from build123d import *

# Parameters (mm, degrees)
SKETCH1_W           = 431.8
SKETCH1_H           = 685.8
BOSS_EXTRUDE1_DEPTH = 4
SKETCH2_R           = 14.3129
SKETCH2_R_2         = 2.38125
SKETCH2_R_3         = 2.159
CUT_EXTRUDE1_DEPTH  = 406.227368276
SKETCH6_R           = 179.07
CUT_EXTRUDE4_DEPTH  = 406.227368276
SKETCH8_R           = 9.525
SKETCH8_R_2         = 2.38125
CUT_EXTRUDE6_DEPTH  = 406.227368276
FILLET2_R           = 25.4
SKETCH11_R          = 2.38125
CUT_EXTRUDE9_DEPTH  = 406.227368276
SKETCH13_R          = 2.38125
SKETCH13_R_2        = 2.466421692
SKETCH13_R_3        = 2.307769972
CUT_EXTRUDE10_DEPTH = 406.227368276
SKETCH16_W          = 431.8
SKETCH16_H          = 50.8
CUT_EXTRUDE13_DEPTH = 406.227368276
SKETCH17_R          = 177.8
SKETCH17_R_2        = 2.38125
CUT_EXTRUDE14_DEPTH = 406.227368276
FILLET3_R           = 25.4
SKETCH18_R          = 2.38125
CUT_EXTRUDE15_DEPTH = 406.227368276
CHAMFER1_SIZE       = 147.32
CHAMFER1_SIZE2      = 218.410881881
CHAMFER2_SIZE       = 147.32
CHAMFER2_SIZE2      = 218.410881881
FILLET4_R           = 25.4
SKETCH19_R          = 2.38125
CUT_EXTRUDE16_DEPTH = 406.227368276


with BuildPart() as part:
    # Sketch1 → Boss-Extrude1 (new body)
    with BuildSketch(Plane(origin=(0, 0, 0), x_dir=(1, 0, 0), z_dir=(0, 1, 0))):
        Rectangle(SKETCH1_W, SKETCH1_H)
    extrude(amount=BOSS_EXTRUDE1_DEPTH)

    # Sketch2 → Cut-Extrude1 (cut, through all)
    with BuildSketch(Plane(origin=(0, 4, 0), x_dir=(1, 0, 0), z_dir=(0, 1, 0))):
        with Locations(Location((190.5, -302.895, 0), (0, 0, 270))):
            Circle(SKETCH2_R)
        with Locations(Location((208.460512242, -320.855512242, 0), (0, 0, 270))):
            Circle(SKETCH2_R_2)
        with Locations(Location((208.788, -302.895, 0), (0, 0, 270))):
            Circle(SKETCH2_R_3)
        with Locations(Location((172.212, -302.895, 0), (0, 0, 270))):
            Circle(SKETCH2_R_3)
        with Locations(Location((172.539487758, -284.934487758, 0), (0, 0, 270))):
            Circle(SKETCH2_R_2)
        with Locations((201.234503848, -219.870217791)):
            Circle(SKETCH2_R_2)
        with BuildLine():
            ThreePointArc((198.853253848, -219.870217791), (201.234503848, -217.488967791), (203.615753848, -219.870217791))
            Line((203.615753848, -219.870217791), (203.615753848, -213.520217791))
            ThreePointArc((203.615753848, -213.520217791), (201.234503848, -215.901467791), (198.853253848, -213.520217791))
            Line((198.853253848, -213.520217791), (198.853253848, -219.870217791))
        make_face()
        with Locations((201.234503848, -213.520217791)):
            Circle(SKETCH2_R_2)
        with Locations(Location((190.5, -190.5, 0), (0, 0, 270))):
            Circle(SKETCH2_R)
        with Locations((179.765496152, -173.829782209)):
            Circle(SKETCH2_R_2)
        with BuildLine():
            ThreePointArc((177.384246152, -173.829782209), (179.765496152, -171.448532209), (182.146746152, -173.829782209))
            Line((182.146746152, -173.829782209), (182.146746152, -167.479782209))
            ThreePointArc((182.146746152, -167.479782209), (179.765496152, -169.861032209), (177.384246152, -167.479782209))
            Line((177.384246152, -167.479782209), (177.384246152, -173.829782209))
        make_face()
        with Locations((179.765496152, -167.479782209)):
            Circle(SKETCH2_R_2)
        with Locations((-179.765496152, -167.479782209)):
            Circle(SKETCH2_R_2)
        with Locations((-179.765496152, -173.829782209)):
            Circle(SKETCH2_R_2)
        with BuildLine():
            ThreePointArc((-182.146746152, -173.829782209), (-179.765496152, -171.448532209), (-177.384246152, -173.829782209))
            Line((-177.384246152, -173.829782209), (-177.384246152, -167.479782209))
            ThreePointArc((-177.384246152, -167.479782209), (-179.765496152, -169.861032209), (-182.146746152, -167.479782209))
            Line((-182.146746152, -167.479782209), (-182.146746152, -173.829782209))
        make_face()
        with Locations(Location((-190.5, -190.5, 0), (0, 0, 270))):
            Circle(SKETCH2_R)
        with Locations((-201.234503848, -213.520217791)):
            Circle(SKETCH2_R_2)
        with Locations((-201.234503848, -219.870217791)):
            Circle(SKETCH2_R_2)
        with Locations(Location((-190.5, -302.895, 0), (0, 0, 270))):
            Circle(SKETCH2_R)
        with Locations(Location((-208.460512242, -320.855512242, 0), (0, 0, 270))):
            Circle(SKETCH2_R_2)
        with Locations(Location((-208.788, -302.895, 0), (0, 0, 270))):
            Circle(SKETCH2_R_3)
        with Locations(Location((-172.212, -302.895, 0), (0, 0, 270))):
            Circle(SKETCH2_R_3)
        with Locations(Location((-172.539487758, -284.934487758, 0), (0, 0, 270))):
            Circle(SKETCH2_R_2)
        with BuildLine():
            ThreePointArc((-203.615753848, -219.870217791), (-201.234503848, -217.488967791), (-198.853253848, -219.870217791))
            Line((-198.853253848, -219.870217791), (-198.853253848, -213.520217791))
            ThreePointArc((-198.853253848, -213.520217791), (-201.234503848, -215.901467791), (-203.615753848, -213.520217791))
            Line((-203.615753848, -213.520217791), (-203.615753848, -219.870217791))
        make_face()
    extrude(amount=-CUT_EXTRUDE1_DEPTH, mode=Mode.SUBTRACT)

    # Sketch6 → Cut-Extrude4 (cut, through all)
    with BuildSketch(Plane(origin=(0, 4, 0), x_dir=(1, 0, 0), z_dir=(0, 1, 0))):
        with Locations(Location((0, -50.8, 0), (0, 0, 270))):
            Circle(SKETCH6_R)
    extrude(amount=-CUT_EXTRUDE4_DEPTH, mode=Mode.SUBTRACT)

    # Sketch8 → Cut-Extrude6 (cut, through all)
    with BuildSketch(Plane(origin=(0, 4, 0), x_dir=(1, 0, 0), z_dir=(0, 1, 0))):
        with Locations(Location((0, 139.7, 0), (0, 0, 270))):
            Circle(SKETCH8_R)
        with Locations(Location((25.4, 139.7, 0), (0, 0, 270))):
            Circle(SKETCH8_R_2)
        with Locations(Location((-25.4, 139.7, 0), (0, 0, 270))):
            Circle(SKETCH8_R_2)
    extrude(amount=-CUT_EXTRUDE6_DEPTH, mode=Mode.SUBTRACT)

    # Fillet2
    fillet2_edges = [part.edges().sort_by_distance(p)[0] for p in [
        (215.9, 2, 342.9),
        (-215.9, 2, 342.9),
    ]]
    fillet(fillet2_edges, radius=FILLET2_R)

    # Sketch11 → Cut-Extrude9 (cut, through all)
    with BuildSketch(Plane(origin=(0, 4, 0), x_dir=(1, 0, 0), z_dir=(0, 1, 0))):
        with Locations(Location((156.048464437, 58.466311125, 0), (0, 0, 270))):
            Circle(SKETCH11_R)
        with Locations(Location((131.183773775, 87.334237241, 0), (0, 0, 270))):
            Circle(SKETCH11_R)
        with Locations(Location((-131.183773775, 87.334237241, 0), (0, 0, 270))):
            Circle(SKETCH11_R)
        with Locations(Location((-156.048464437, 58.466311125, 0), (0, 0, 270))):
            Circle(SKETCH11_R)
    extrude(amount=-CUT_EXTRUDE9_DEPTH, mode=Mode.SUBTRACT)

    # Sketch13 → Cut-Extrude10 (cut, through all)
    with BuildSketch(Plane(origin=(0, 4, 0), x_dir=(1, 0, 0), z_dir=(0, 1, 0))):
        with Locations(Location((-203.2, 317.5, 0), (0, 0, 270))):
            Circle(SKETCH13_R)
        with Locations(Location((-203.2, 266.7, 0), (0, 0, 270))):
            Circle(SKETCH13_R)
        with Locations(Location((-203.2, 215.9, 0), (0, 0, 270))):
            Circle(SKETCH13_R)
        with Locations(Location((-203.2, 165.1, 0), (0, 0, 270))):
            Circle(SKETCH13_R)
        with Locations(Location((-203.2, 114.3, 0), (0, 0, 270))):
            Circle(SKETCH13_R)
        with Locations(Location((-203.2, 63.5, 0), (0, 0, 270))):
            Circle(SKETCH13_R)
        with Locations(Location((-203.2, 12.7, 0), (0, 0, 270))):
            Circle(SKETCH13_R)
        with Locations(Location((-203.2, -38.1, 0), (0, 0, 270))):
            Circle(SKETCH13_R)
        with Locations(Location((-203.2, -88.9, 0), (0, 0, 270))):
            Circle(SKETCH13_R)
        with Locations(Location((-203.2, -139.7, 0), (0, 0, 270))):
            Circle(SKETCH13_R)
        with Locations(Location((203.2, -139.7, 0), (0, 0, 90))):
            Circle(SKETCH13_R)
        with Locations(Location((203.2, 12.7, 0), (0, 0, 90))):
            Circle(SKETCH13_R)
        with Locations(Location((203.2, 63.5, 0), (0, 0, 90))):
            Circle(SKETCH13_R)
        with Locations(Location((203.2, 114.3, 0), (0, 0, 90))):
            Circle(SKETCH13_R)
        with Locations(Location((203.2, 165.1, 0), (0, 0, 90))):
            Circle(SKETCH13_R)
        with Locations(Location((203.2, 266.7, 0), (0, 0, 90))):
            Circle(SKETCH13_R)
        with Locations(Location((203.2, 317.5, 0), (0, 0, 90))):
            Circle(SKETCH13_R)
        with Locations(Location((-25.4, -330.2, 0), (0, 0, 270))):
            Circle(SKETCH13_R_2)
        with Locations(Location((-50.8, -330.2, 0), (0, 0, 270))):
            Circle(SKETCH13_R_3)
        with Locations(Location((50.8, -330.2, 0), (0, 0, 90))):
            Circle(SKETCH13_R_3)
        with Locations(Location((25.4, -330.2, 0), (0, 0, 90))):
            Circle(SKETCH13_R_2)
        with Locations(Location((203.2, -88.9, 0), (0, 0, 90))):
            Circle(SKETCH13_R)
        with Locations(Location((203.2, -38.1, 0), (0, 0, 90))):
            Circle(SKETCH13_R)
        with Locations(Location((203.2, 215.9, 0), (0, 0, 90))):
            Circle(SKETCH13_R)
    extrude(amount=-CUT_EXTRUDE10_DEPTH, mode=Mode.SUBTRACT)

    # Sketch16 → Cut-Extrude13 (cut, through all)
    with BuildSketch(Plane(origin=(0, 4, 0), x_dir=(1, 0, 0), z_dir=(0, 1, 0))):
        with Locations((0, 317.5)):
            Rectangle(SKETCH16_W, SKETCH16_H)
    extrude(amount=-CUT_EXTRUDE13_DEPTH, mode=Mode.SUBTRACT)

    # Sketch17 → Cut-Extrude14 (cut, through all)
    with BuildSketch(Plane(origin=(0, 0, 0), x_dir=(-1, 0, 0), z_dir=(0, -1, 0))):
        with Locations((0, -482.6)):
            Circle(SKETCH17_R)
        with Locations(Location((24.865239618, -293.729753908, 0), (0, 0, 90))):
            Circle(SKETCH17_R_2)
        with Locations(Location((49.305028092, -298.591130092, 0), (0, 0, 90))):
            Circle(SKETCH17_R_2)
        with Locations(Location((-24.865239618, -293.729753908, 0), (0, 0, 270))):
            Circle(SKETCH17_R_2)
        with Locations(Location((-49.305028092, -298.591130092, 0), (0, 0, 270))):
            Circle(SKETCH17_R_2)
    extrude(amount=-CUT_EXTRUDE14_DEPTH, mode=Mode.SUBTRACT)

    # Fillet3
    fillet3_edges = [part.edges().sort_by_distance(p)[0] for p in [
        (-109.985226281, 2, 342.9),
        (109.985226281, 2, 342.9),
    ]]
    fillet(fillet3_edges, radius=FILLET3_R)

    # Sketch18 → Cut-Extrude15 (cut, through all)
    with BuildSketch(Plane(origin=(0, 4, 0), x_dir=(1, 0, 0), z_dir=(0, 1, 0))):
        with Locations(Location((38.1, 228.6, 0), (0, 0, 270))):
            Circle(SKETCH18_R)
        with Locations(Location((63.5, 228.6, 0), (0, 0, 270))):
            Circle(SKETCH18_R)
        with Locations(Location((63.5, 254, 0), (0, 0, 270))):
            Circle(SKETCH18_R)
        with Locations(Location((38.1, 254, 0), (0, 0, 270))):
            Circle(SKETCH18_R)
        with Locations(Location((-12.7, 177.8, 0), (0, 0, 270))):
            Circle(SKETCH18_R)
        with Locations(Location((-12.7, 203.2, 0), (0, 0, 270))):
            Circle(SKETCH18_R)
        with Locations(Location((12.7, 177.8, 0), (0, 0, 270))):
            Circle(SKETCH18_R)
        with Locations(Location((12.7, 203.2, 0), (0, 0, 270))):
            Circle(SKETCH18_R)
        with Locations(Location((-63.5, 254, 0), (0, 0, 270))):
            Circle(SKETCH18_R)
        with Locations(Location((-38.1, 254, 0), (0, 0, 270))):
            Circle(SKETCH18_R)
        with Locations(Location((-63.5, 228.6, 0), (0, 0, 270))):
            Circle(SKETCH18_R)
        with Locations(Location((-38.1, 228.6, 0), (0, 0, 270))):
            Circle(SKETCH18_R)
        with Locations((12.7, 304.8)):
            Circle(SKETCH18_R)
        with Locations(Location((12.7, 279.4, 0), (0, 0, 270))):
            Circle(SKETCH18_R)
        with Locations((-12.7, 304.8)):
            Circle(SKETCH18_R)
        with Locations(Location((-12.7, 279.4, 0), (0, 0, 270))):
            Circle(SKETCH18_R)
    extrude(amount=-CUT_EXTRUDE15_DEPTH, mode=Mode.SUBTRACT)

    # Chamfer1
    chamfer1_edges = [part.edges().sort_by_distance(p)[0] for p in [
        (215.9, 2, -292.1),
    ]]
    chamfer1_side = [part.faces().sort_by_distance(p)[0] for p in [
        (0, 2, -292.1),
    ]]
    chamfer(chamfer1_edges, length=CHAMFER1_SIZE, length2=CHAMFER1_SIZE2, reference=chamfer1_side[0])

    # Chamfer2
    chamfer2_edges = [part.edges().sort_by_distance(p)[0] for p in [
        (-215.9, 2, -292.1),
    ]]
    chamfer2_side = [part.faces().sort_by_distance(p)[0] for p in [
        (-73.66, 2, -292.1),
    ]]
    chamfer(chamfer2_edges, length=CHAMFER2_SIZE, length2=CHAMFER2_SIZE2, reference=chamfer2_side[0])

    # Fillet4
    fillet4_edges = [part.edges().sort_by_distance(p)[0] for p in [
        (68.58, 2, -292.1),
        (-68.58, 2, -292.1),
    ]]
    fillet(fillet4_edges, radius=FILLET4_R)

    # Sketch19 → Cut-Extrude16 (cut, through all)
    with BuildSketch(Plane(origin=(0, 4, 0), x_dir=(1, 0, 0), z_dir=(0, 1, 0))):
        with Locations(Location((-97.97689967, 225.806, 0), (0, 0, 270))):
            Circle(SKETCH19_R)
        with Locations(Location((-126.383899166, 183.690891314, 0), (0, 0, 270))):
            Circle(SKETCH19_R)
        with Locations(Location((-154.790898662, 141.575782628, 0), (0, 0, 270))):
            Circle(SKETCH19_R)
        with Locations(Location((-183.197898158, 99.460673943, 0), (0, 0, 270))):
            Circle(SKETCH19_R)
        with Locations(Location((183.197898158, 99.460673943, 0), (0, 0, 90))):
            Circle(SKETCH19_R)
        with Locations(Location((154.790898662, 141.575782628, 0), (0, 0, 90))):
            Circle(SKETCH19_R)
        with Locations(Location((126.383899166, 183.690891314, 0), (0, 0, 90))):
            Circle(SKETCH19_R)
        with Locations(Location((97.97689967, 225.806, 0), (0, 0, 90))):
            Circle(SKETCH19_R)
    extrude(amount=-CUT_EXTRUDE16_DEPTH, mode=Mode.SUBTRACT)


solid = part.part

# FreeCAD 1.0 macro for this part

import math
import FreeCAD as App
import Part
import Sketcher
from FreeCAD import Vector
Q = App.Units.Quantity


def edges_at(feature, points):
    """Names of the edges that pass closest to the given points."""
    edges = feature.Shape.Edges
    near = lambda p: min(range(len(edges)), key=lambda i: edges[i].distToShape(Part.Vertex(*p))[0])
    return sorted({f"Edge{near(p) + 1}" for p in points})

doc = App.newDocument("Part")
body = doc.addObject("PartDesign::Body", "Body")

sketch1 = body.newObject("Sketcher::SketchObject", "Sketch")
sketch1.AttachmentSupport = (doc.getObject("XZ_Plane"), [""])
sketch1.MapMode = "FlatFace"
sketch1.addGeometry([
    Part.LineSegment(Vector(-216, -343, 0), Vector(-216, 343, 0)),
    Part.LineSegment(Vector(-216, 343, 0), Vector(216, 343, 0)),
    Part.LineSegment(Vector(216, 343, 0), Vector(216, -343, 0)),
    Part.LineSegment(Vector(216, -343, 0), Vector(-216, -343, 0)),
], False)
sketch1.addConstraint([
    Sketcher.Constraint("Coincident", 0, 2, 1, 1),
    Sketcher.Constraint("Coincident", 1, 2, 2, 1),
    Sketcher.Constraint("Coincident", 2, 2, 3, 1),
    Sketcher.Constraint("Coincident", 3, 2, 0, 1),
    Sketcher.Constraint("Vertical", 0),
    Sketcher.Constraint("Horizontal", 1),
    Sketcher.Constraint("Vertical", 2),
    Sketcher.Constraint("Horizontal", 3),
    Sketcher.Constraint("Symmetric", 0, 2, 2, 2, -1, 1),
    Sketcher.Constraint("DistanceX", 1, 1, 1, 2, Q("17 in")),
    Sketcher.Constraint("DistanceY", 0, 1, 0, 2, Q("27 in")),
])
pad1 = body.newObject("PartDesign::Pad", "Pad")
pad1.Profile = sketch1
pad1.Length = 4
pad1.Reversed = True

sketch2 = body.newObject("Sketcher::SketchObject", "Sketch001")
sketch2.AttachmentSupport = (doc.getObject("XZ_Plane"), [""])
sketch2.MapMode = "FlatFace"
sketch2.AttachmentOffset = App.Placement(Vector(0, 0, -4), App.Rotation())
sketch2.addGeometry([
    Part.Circle(Vector(190.5, 302.9, 0), Vector(0, 0, 1), 14.3),
    Part.Circle(Vector(208.5, 320.9, 0), Vector(0, 0, 1), 2.4),
    Part.Circle(Vector(208.8, 302.9, 0), Vector(0, 0, 1), 2.2),
    Part.Circle(Vector(172.2, 302.9, 0), Vector(0, 0, 1), 2.2),
    Part.Circle(Vector(172.5, 284.9, 0), Vector(0, 0, 1), 2.4),
    Part.ArcOfCircle(Part.Circle(Vector(201.2, 219.9, 0), Vector(0, 0, 1), 2.4), math.radians(0), math.radians(180)),
    Part.LineSegment(Vector(203.6, 219.9, 0), Vector(203.6, 213.5, 0)),
    Part.ArcOfCircle(Part.Circle(Vector(201.2, 213.5, 0), Vector(0, 0, 1), 2.4), math.radians(180), math.radians(360)),
    Part.LineSegment(Vector(198.9, 213.5, 0), Vector(198.9, 219.9, 0)),
    Part.Circle(Vector(190.5, 190.5, 0), Vector(0, 0, 1), 14.3),
    Part.ArcOfCircle(Part.Circle(Vector(179.8, 173.8, 0), Vector(0, 0, 1), 2.4), math.radians(0), math.radians(180)),
    Part.LineSegment(Vector(182.1, 173.8, 0), Vector(182.1, 167.5, 0)),
    Part.ArcOfCircle(Part.Circle(Vector(179.8, 167.5, 0), Vector(0, 0, 1), 2.4), math.radians(180), math.radians(360)),
    Part.LineSegment(Vector(177.4, 167.5, 0), Vector(177.4, 173.8, 0)),
    Part.ArcOfCircle(Part.Circle(Vector(-179.8, 167.5, 0), Vector(0, 0, 1), 2.4), math.radians(180), math.radians(360)),
    Part.LineSegment(Vector(-182.1, 167.5, 0), Vector(-182.1, 173.8, 0)),
    Part.ArcOfCircle(Part.Circle(Vector(-179.8, 173.8, 0), Vector(0, 0, 1), 2.4), math.radians(0), math.radians(180)),
    Part.LineSegment(Vector(-177.4, 173.8, 0), Vector(-177.4, 167.5, 0)),
    Part.Circle(Vector(-190.5, 190.5, 0), Vector(0, 0, 1), 14.3),
    Part.ArcOfCircle(Part.Circle(Vector(-201.2, 213.5, 0), Vector(0, 0, 1), 2.4), math.radians(180), math.radians(360)),
    Part.LineSegment(Vector(-203.6, 213.5, 0), Vector(-203.6, 219.9, 0)),
    Part.ArcOfCircle(Part.Circle(Vector(-201.2, 219.9, 0), Vector(0, 0, 1), 2.4), math.radians(0), math.radians(180)),
    Part.LineSegment(Vector(-198.9, 219.9, 0), Vector(-198.9, 213.5, 0)),
    Part.Circle(Vector(-190.5, 302.9, 0), Vector(0, 0, 1), 14.3),
    Part.Circle(Vector(-208.5, 320.9, 0), Vector(0, 0, 1), 2.4),
    Part.Circle(Vector(-208.8, 302.9, 0), Vector(0, 0, 1), 2.2),
    Part.Circle(Vector(-172.2, 302.9, 0), Vector(0, 0, 1), 2.2),
    Part.Circle(Vector(-172.5, 284.9, 0), Vector(0, 0, 1), 2.4),
], False)
sketch2.addConstraint([
    Sketcher.Constraint("Tangent", 5, 1, 6, 1),
    Sketcher.Constraint("Tangent", 6, 2, 7, 2),
    Sketcher.Constraint("Tangent", 7, 1, 8, 1),
    Sketcher.Constraint("Tangent", 8, 2, 5, 2),
    Sketcher.Constraint("Tangent", 10, 1, 11, 1),
    Sketcher.Constraint("Tangent", 11, 2, 12, 2),
    Sketcher.Constraint("Tangent", 12, 1, 13, 1),
    Sketcher.Constraint("Tangent", 13, 2, 10, 2),
    Sketcher.Constraint("Tangent", 14, 1, 15, 1),
    Sketcher.Constraint("Tangent", 15, 2, 16, 2),
    Sketcher.Constraint("Tangent", 16, 1, 17, 1),
    Sketcher.Constraint("Tangent", 17, 2, 14, 2),
    Sketcher.Constraint("Tangent", 19, 1, 20, 1),
    Sketcher.Constraint("Tangent", 20, 2, 21, 2),
    Sketcher.Constraint("Tangent", 21, 1, 22, 1),
    Sketcher.Constraint("Tangent", 22, 2, 19, 2),
    Sketcher.Constraint("Vertical", 6),
    Sketcher.Constraint("Vertical", 8),
    Sketcher.Constraint("Vertical", 11),
    Sketcher.Constraint("Vertical", 13),
    Sketcher.Constraint("Vertical", 15),
    Sketcher.Constraint("Vertical", 17),
    Sketcher.Constraint("Vertical", 20),
    Sketcher.Constraint("Vertical", 22),
    Sketcher.Constraint("Equal", 2, 3),
    Sketcher.Constraint("Equal", 1, 4),
    Sketcher.Constraint("Equal", 4, 5),
    Sketcher.Constraint("Equal", 0, 9),
    Sketcher.Constraint("Equal", 7, 10),
    Sketcher.Constraint("Equal", 12, 14),
    Sketcher.Constraint("Equal", 9, 18),
    Sketcher.Constraint("Equal", 16, 19),
    Sketcher.Constraint("Equal", 18, 23),
    Sketcher.Constraint("Equal", 21, 24),
    Sketcher.Constraint("Equal", 3, 25),
    Sketcher.Constraint("Equal", 25, 26),
    Sketcher.Constraint("Equal", 24, 27),
    Sketcher.Constraint("Symmetric", 12, 3, 14, 3, -2),
    Sketcher.Constraint("Symmetric", 9, 3, 18, 3, -2),
    Sketcher.Constraint("Symmetric", 7, 3, 19, 3, -2),
    Sketcher.Constraint("Symmetric", 0, 3, 23, 3, -2),
    Sketcher.Constraint("Symmetric", 1, 3, 24, 3, -2),
    Sketcher.Constraint("Symmetric", 2, 3, 25, 3, -2),
    Sketcher.Constraint("Symmetric", 3, 3, 26, 3, -2),
    Sketcher.Constraint("Symmetric", 4, 3, 27, 3, -2),
    Sketcher.Constraint("Horizontal", 0, 3, 2, 3),
    Sketcher.Constraint("Horizontal", 2, 3, 3, 3),
    Sketcher.Constraint("Horizontal", 10, 3, 16, 3),
    Sketcher.Constraint("Horizontal", 5, 3, 21, 3),
    Sketcher.Constraint("Vertical", 0, 3, 9, 3),
    Sketcher.Constraint("Equal", 8, 11),
    Sketcher.Constraint("Diameter", 2, Q("0.17 in")),
    Sketcher.Constraint("Diameter", 0, Q("1.127 in")),
    Sketcher.Constraint("Diameter", 1, Q("0.1875 in")),
    Sketcher.Constraint("DistanceX", 19, 3, 10, 3, Q("15 in")),
    Sketcher.Constraint("DistanceY", 6, 2, 6, 1, Q("0.25 in")),
    Sketcher.Constraint("DistanceX", -1, 1, 0, 3, Q("7.5 in")),
    Sketcher.Constraint("DistanceY", -1, 1, 9, 3, Q("7.5 in")),
    Sketcher.Constraint("DistanceX", -1, 1, 2, 3, Q("8.22 in")),
    Sketcher.Constraint("DistanceX", -1, 1, 3, 3, Q("6.78 in")),
    Sketcher.Constraint("DistanceY", -1, 1, 0, 3, Q("11.925 in")),
    Sketcher.Constraint("DistanceY", 5, 3, 4, 3, 65.06427),
    Sketcher.Constraint("DistanceX", 5, 3, 1, 3, 7.226008),
    Sketcher.Constraint("DistanceX", 4, 3, 10, 3, 7.226008),
    Sketcher.Constraint("DistanceY", 16, 3, 24, 3, 147.02573),
    Sketcher.Constraint("DistanceX", -1, 1, 1, 3, 208.460512),
    Sketcher.Constraint("DistanceY", -1, 1, 1, 3, 320.855512),
    Sketcher.Constraint("DistanceY", -1, 1, 4, 3, 284.934488),
])
pocket1 = body.newObject("PartDesign::Pocket", "Pocket")
pocket1.Profile = sketch2
pocket1.Type = "ThroughAll"
pocket1.Reversed = True

sketch3 = body.newObject("Sketcher::SketchObject", "Sketch002")
sketch3.AttachmentSupport = (doc.getObject("XZ_Plane"), [""])
sketch3.MapMode = "FlatFace"
sketch3.AttachmentOffset = App.Placement(Vector(0, 0, -4), App.Rotation())
sketch3.addGeometry(Part.Circle(Vector(0, 51, 0), Vector(0, 0, 1), 179), False)
sketch3.addConstraint([
    Sketcher.Constraint("PointOnObject", 0, 3, -2),
    Sketcher.Constraint("Diameter", 0, Q("14.1 in")),
    Sketcher.Constraint("DistanceY", -1, 1, 0, 3, Q("2 in")),
])
pocket2 = body.newObject("PartDesign::Pocket", "Pocket001")
pocket2.Profile = sketch3
pocket2.Type = "ThroughAll"
pocket2.Reversed = True

sketch4 = body.newObject("Sketcher::SketchObject", "Sketch003")
sketch4.AttachmentSupport = (doc.getObject("XZ_Plane"), [""])
sketch4.MapMode = "FlatFace"
sketch4.AttachmentOffset = App.Placement(Vector(0, 0, -4), App.Rotation())
sketch4.addGeometry([
    Part.Circle(Vector(0, -139.7, 0), Vector(0, 0, 1), 9.5),
    Part.Circle(Vector(25.4, -139.7, 0), Vector(0, 0, 1), 2.4),
    Part.Circle(Vector(-25.4, -139.7, 0), Vector(0, 0, 1), 2.4),
], False)
sketch4.addConstraint([
    Sketcher.Constraint("Equal", 1, 2),
    Sketcher.Constraint("Symmetric", 1, 3, 2, 3, -2),
    Sketcher.Constraint("PointOnObject", 0, 3, -2),
    Sketcher.Constraint("Horizontal", 0, 3, 1, 3),
    Sketcher.Constraint("Diameter", 0, Q("0.75 in")),
    Sketcher.Constraint("Diameter", 1, Q("0.1875 in")),
    Sketcher.Constraint("DistanceX", -1, 1, 1, 3, Q("1 in")),
    Sketcher.Constraint("DistanceY", 0, 3, -1, 1, Q("5.5 in")),
])
pocket3 = body.newObject("PartDesign::Pocket", "Pocket002")
pocket3.Profile = sketch4
pocket3.Type = "ThroughAll"
pocket3.Reversed = True
doc.recompute()

fillet = body.newObject("PartDesign::Fillet", "Fillet")
fillet.Base = (pocket3, edges_at(pocket3, [(215.9, 2, 342.9), (-215.9, 2, 342.9)]))
fillet.Radius = Q("1 in")

sketch5 = body.newObject("Sketcher::SketchObject", "Sketch004")
sketch5.AttachmentSupport = (doc.getObject("XZ_Plane"), [""])
sketch5.MapMode = "FlatFace"
sketch5.AttachmentOffset = App.Placement(Vector(0, 0, -4), App.Rotation())
sketch5.addGeometry([
    Part.Circle(Vector(156, -58.5, 0), Vector(0, 0, 1), 2.4),
    Part.Circle(Vector(131.2, -87.3, 0), Vector(0, 0, 1), 2.4),
    Part.Circle(Vector(-131.2, -87.3, 0), Vector(0, 0, 1), 2.4),
    Part.Circle(Vector(-156, -58.5, 0), Vector(0, 0, 1), 2.4),
], False)
sketch5.addConstraint([
    Sketcher.Constraint("Equal", 0, 1),
    Sketcher.Constraint("Equal", 1, 2),
    Sketcher.Constraint("Equal", 2, 3),
    Sketcher.Constraint("Symmetric", 1, 3, 2, 3, -2),
    Sketcher.Constraint("Symmetric", 0, 3, 3, 3, -2),
    Sketcher.Constraint("Diameter", 0, Q("0.1875 in")),
    Sketcher.Constraint("DistanceY", 0, 3, -1, 1, 58.466311),
    Sketcher.Constraint("DistanceX", 1, 3, 0, 3, 24.864691),
    Sketcher.Constraint("DistanceX", 2, 3, 0, 3, 287.232238),
    Sketcher.Constraint("DistanceY", 1, 3, -1, 1, 87.334237),
])
pocket4 = body.newObject("PartDesign::Pocket", "Pocket003")
pocket4.Profile = sketch5
pocket4.Type = "ThroughAll"
pocket4.Reversed = True

sketch6 = body.newObject("Sketcher::SketchObject", "Sketch005")
sketch6.AttachmentSupport = (doc.getObject("XZ_Plane"), [""])
sketch6.MapMode = "FlatFace"
sketch6.AttachmentOffset = App.Placement(Vector(0, 0, -4), App.Rotation())
sketch6.addGeometry([
    Part.Circle(Vector(-203.2, -317.5, 0), Vector(0, 0, 1), 2.4),
    Part.Circle(Vector(-203.2, -266.7, 0), Vector(0, 0, 1), 2.4),
    Part.Circle(Vector(-203.2, -215.9, 0), Vector(0, 0, 1), 2.4),
    Part.Circle(Vector(-203.2, -165.1, 0), Vector(0, 0, 1), 2.4),
    Part.Circle(Vector(-203.2, -114.3, 0), Vector(0, 0, 1), 2.4),
    Part.Circle(Vector(-203.2, -63.5, 0), Vector(0, 0, 1), 2.4),
    Part.Circle(Vector(-203.2, -12.7, 0), Vector(0, 0, 1), 2.4),
    Part.Circle(Vector(-203.2, 38.1, 0), Vector(0, 0, 1), 2.4),
    Part.Circle(Vector(-203.2, 88.9, 0), Vector(0, 0, 1), 2.4),
    Part.Circle(Vector(-203.2, 139.7, 0), Vector(0, 0, 1), 2.4),
    Part.Circle(Vector(203.2, 139.7, 0), Vector(0, 0, 1), 2.4),
    Part.Circle(Vector(203.2, -12.7, 0), Vector(0, 0, 1), 2.4),
    Part.Circle(Vector(203.2, -63.5, 0), Vector(0, 0, 1), 2.4),
    Part.Circle(Vector(203.2, -114.3, 0), Vector(0, 0, 1), 2.4),
    Part.Circle(Vector(203.2, -165.1, 0), Vector(0, 0, 1), 2.4),
    Part.Circle(Vector(203.2, -266.7, 0), Vector(0, 0, 1), 2.4),
    Part.Circle(Vector(203.2, -317.5, 0), Vector(0, 0, 1), 2.4),
    Part.Circle(Vector(-25.4, 330.2, 0), Vector(0, 0, 1), 2.5),
    Part.Circle(Vector(-50.8, 330.2, 0), Vector(0, 0, 1), 2.3),
    Part.Circle(Vector(50.8, 330.2, 0), Vector(0, 0, 1), 2.3),
    Part.Circle(Vector(25.4, 330.2, 0), Vector(0, 0, 1), 2.5),
    Part.Circle(Vector(203.2, 88.9, 0), Vector(0, 0, 1), 2.4),
    Part.Circle(Vector(203.2, 38.1, 0), Vector(0, 0, 1), 2.4),
    Part.Circle(Vector(203.2, -215.9, 0), Vector(0, 0, 1), 2.4),
], False)
sketch6.addConstraint([
    Sketcher.Constraint("Equal", 0, 1),
    Sketcher.Constraint("Equal", 1, 2),
    Sketcher.Constraint("Equal", 2, 3),
    Sketcher.Constraint("Equal", 3, 4),
    Sketcher.Constraint("Equal", 4, 5),
    Sketcher.Constraint("Equal", 5, 6),
    Sketcher.Constraint("Equal", 6, 7),
    Sketcher.Constraint("Equal", 7, 8),
    Sketcher.Constraint("Equal", 8, 9),
    Sketcher.Constraint("Equal", 9, 10),
    Sketcher.Constraint("Equal", 10, 11),
    Sketcher.Constraint("Equal", 11, 12),
    Sketcher.Constraint("Equal", 12, 13),
    Sketcher.Constraint("Equal", 13, 14),
    Sketcher.Constraint("Equal", 14, 15),
    Sketcher.Constraint("Equal", 15, 16),
    Sketcher.Constraint("Equal", 18, 19),
    Sketcher.Constraint("Equal", 17, 20),
    Sketcher.Constraint("Equal", 16, 21),
    Sketcher.Constraint("Equal", 21, 22),
    Sketcher.Constraint("Equal", 22, 23),
    Sketcher.Constraint("Symmetric", 9, 3, 10, 3, -2),
    Sketcher.Constraint("Symmetric", 6, 3, 11, 3, -2),
    Sketcher.Constraint("Symmetric", 5, 3, 12, 3, -2),
    Sketcher.Constraint("Symmetric", 4, 3, 13, 3, -2),
    Sketcher.Constraint("Symmetric", 3, 3, 14, 3, -2),
    Sketcher.Constraint("Symmetric", 1, 3, 15, 3, -2),
    Sketcher.Constraint("Symmetric", 0, 3, 16, 3, -2),
    Sketcher.Constraint("Symmetric", 18, 3, 19, 3, -2),
    Sketcher.Constraint("Symmetric", 17, 3, 20, 3, -2),
    Sketcher.Constraint("Symmetric", 8, 3, 21, 3, -2),
    Sketcher.Constraint("Symmetric", 7, 3, 22, 3, -2),
    Sketcher.Constraint("Symmetric", 2, 3, 23, 3, -2),
    Sketcher.Constraint("Horizontal", 17, 3, 18, 3),
    Sketcher.Constraint("Vertical", 0, 3, 1, 3),
    Sketcher.Constraint("Vertical", 1, 3, 2, 3),
    Sketcher.Constraint("Vertical", 2, 3, 3, 3),
    Sketcher.Constraint("Vertical", 3, 3, 4, 3),
    Sketcher.Constraint("Vertical", 4, 3, 5, 3),
    Sketcher.Constraint("Vertical", 5, 3, 6, 3),
    Sketcher.Constraint("Vertical", 6, 3, 7, 3),
    Sketcher.Constraint("Vertical", 7, 3, 8, 3),
    Sketcher.Constraint("Vertical", 8, 3, 9, 3),
    Sketcher.Constraint("Diameter", 0, Q("0.1875 in")),
    Sketcher.Constraint("DistanceX", 0, 3, -1, 1, Q("8 in")),
    Sketcher.Constraint("DistanceX", 17, 3, -1, 1, Q("1 in")),
    Sketcher.Constraint("DistanceY", -1, 1, 17, 3, Q("13 in")),
    Sketcher.Constraint("DistanceX", 18, 3, -1, 1, Q("2 in")),
    Sketcher.Constraint("DistanceY", 0, 3, 1, 3, Q("2 in")),
    Sketcher.Constraint("DistanceY", 1, 3, 2, 3, Q("2 in")),
    Sketcher.Constraint("DistanceY", 2, 3, 3, 3, Q("2 in")),
    Sketcher.Constraint("DistanceY", 3, 3, 4, 3, Q("2 in")),
    Sketcher.Constraint("DistanceY", 4, 3, 5, 3, Q("2 in")),
    Sketcher.Constraint("DistanceY", 5, 3, 6, 3, Q("2 in")),
    Sketcher.Constraint("DistanceY", 6, 3, 7, 3, Q("2 in")),
    Sketcher.Constraint("DistanceY", 7, 3, 8, 3, Q("2 in")),
    Sketcher.Constraint("DistanceY", 8, 3, 9, 3, Q("2 in")),
    Sketcher.Constraint("DistanceY", 0, 3, -1, 1, Q("12.5 in")),
    Sketcher.Constraint("Diameter", 18, 4.61554),
    Sketcher.Constraint("Diameter", 17, 4.932843),
])
pocket5 = body.newObject("PartDesign::Pocket", "Pocket004")
pocket5.Profile = sketch6
pocket5.Type = "ThroughAll"
pocket5.Reversed = True

sketch7 = body.newObject("Sketcher::SketchObject", "Sketch006")
sketch7.AttachmentSupport = (doc.getObject("XZ_Plane"), [""])
sketch7.MapMode = "FlatFace"
sketch7.AttachmentOffset = App.Placement(Vector(0, 0, -4), App.Rotation())
sketch7.addGeometry([
    Part.LineSegment(Vector(-216, -343, 0), Vector(-216, -292, 0)),
    Part.LineSegment(Vector(-216, -292, 0), Vector(216, -292, 0)),
    Part.LineSegment(Vector(216, -292, 0), Vector(216, -343, 0)),
    Part.LineSegment(Vector(216, -343, 0), Vector(-216, -343, 0)),
], False)
sketch7.addConstraint([
    Sketcher.Constraint("Coincident", 0, 2, 1, 1),
    Sketcher.Constraint("Coincident", 1, 2, 2, 1),
    Sketcher.Constraint("Coincident", 2, 2, 3, 1),
    Sketcher.Constraint("Coincident", 3, 2, 0, 1),
    Sketcher.Constraint("Vertical", 0),
    Sketcher.Constraint("Horizontal", 1),
    Sketcher.Constraint("Vertical", 2),
    Sketcher.Constraint("Horizontal", 3),
    Sketcher.Constraint("DistanceX", 1, 1, 1, 2, Q("17 in")),
    Sketcher.Constraint("DistanceY", 0, 1, 0, 2, Q("2 in")),
    Sketcher.Constraint("DistanceX", 0, 2, -1, 1, Q("8.5 in")),
    Sketcher.Constraint("DistanceY", 0, 2, -1, 1, Q("11.5 in")),
])
pocket6 = body.newObject("PartDesign::Pocket", "Pocket005")
pocket6.Profile = sketch7
pocket6.Type = "ThroughAll"
pocket6.Reversed = True

sketch8 = body.newObject("Sketcher::SketchObject", "Sketch007")
sketch8.AttachmentSupport = (doc.getObject("XZ_Plane"), [""])
sketch8.MapMode = "FlatFace"
sketch8.addGeometry([
    Part.Circle(Vector(0, 482.6, 0), Vector(0, 0, 1), 177.8),
    Part.Circle(Vector(-24.9, 293.7, 0), Vector(0, 0, 1), 2.4),
    Part.Circle(Vector(-49.3, 298.6, 0), Vector(0, 0, 1), 2.4),
    Part.Circle(Vector(24.9, 293.7, 0), Vector(0, 0, 1), 2.4),
    Part.Circle(Vector(49.3, 298.6, 0), Vector(0, 0, 1), 2.4),
], False)
sketch8.addConstraint([
    Sketcher.Constraint("Equal", 1, 2),
    Sketcher.Constraint("Equal", 2, 3),
    Sketcher.Constraint("Equal", 3, 4),
    Sketcher.Constraint("Symmetric", 1, 3, 3, 3, -2),
    Sketcher.Constraint("Symmetric", 2, 3, 4, 3, -2),
    Sketcher.Constraint("PointOnObject", 0, 3, -2),
    Sketcher.Constraint("Diameter", 0, Q("14 in")),
    Sketcher.Constraint("Diameter", 1, Q("0.1875 in")),
    Sketcher.Constraint("DistanceY", -1, 1, 0, 3, Q("19 in")),
    Sketcher.Constraint("DistanceX", 1, 3, -1, 1, 24.86524),
    Sketcher.Constraint("DistanceX", 2, 3, -1, 1, 49.305028),
    Sketcher.Constraint("DistanceY", -1, 1, 2, 3, 298.59113),
    Sketcher.Constraint("DistanceY", -1, 1, 1, 3, 293.729754),
])
pocket7 = body.newObject("PartDesign::Pocket", "Pocket006")
pocket7.Profile = sketch8
pocket7.Type = "ThroughAll"
doc.recompute()

fillet2 = body.newObject("PartDesign::Fillet", "Fillet001")
fillet2.Base = (pocket7, edges_at(pocket7, [(-109.985, 2, 342.9), (109.985, 2, 342.9)]))
fillet2.Radius = Q("1 in")

sketch9 = body.newObject("Sketcher::SketchObject", "Sketch008")
sketch9.AttachmentSupport = (doc.getObject("XZ_Plane"), [""])
sketch9.MapMode = "FlatFace"
sketch9.AttachmentOffset = App.Placement(Vector(0, 0, -4), App.Rotation())
sketch9.addGeometry([
    Part.Circle(Vector(38.1, -228.6, 0), Vector(0, 0, 1), 2.4),
    Part.Circle(Vector(63.5, -228.6, 0), Vector(0, 0, 1), 2.4),
    Part.Circle(Vector(63.5, -254, 0), Vector(0, 0, 1), 2.4),
    Part.Circle(Vector(38.1, -254, 0), Vector(0, 0, 1), 2.4),
    Part.Circle(Vector(-12.7, -177.8, 0), Vector(0, 0, 1), 2.4),
    Part.Circle(Vector(-12.7, -203.2, 0), Vector(0, 0, 1), 2.4),
    Part.Circle(Vector(12.7, -177.8, 0), Vector(0, 0, 1), 2.4),
    Part.Circle(Vector(12.7, -203.2, 0), Vector(0, 0, 1), 2.4),
    Part.Circle(Vector(-63.5, -254, 0), Vector(0, 0, 1), 2.4),
    Part.Circle(Vector(-38.1, -254, 0), Vector(0, 0, 1), 2.4),
    Part.Circle(Vector(-63.5, -228.6, 0), Vector(0, 0, 1), 2.4),
    Part.Circle(Vector(-38.1, -228.6, 0), Vector(0, 0, 1), 2.4),
    Part.Circle(Vector(12.7, -304.8, 0), Vector(0, 0, 1), 2.4),
    Part.Circle(Vector(12.7, -279.4, 0), Vector(0, 0, 1), 2.4),
    Part.Circle(Vector(-12.7, -304.8, 0), Vector(0, 0, 1), 2.4),
    Part.Circle(Vector(-12.7, -279.4, 0), Vector(0, 0, 1), 2.4),
], False)
sketch9.addConstraint([
    Sketcher.Constraint("Equal", 0, 1),
    Sketcher.Constraint("Equal", 1, 2),
    Sketcher.Constraint("Equal", 2, 3),
    Sketcher.Constraint("Equal", 3, 4),
    Sketcher.Constraint("Equal", 4, 5),
    Sketcher.Constraint("Equal", 5, 6),
    Sketcher.Constraint("Equal", 6, 7),
    Sketcher.Constraint("Equal", 7, 8),
    Sketcher.Constraint("Equal", 8, 9),
    Sketcher.Constraint("Equal", 9, 10),
    Sketcher.Constraint("Equal", 10, 11),
    Sketcher.Constraint("Equal", 11, 12),
    Sketcher.Constraint("Equal", 12, 13),
    Sketcher.Constraint("Equal", 13, 14),
    Sketcher.Constraint("Equal", 14, 15),
    Sketcher.Constraint("Symmetric", 4, 3, 6, 3, -2),
    Sketcher.Constraint("Symmetric", 5, 3, 7, 3, -2),
    Sketcher.Constraint("Symmetric", 2, 3, 8, 3, -2),
    Sketcher.Constraint("Symmetric", 3, 3, 9, 3, -2),
    Sketcher.Constraint("Symmetric", 1, 3, 10, 3, -2),
    Sketcher.Constraint("Symmetric", 0, 3, 11, 3, -2),
    Sketcher.Constraint("Symmetric", 12, 3, 14, 3, -2),
    Sketcher.Constraint("Symmetric", 13, 3, 15, 3, -2),
    Sketcher.Constraint("Horizontal", 0, 3, 1, 3),
    Sketcher.Constraint("Horizontal", 2, 3, 3, 3),
    Sketcher.Constraint("Vertical", 1, 3, 2, 3),
    Sketcher.Constraint("Vertical", 0, 3, 3, 3),
    Sketcher.Constraint("Vertical", 4, 3, 5, 3),
    Sketcher.Constraint("Vertical", 7, 3, 12, 3),
    Sketcher.Constraint("Vertical", 12, 3, 13, 3),
    Sketcher.Constraint("Diameter", 0, Q("0.1875 in")),
    Sketcher.Constraint("DistanceY", 0, 3, -1, 1, Q("9 in")),
    Sketcher.Constraint("DistanceY", 2, 3, -1, 1, Q("10 in")),
    Sketcher.Constraint("DistanceY", 4, 3, -1, 1, Q("7 in")),
    Sketcher.Constraint("DistanceY", 5, 3, -1, 1, Q("8 in")),
    Sketcher.Constraint("DistanceY", 12, 3, -1, 1, Q("12 in")),
    Sketcher.Constraint("DistanceY", 13, 3, -1, 1, Q("11 in")),
    Sketcher.Constraint("DistanceX", 0, 3, 1, 3, Q("1 in")),
    Sketcher.Constraint("DistanceX", 4, 3, 0, 3, Q("2 in")),
    Sketcher.Constraint("DistanceX", 4, 3, 6, 3, Q("1 in")),
])
pocket8 = body.newObject("PartDesign::Pocket", "Pocket007")
pocket8.Profile = sketch9
pocket8.Type = "ThroughAll"
pocket8.Reversed = True
doc.recompute()

chamfer = body.newObject("PartDesign::Chamfer", "Chamfer")
chamfer.Base = (pocket8, edges_at(pocket8, [(215.9, 2, -292.1)]))
chamfer.ChamferType = "Two distances"
chamfer.Size = Q("5.8 in")
chamfer.Size2 = 218.410882
chamfer.FlipDirection = True
doc.recompute()

chamfer2 = body.newObject("PartDesign::Chamfer", "Chamfer001")
chamfer2.Base = (chamfer, edges_at(chamfer, [(-215.9, 2, -292.1)]))
chamfer2.ChamferType = "Two distances"
chamfer2.Size = Q("5.8 in")
chamfer2.Size2 = 218.410882
doc.recompute()

fillet3 = body.newObject("PartDesign::Fillet", "Fillet002")
fillet3.Base = (chamfer2, edges_at(chamfer2, [(68.58, 2, -292.1), (-68.58, 2, -292.1)]))
fillet3.Radius = Q("1 in")

sketch10 = body.newObject("Sketcher::SketchObject", "Sketch009")
sketch10.AttachmentSupport = (doc.getObject("XZ_Plane"), [""])
sketch10.MapMode = "FlatFace"
sketch10.AttachmentOffset = App.Placement(Vector(0, 0, -4), App.Rotation())
sketch10.addGeometry([
    Part.Circle(Vector(-98, -225.8, 0), Vector(0, 0, 1), 2.4),
    Part.Circle(Vector(-126.4, -183.7, 0), Vector(0, 0, 1), 2.4),
    Part.Circle(Vector(-154.8, -141.6, 0), Vector(0, 0, 1), 2.4),
    Part.Circle(Vector(-183.2, -99.5, 0), Vector(0, 0, 1), 2.4),
    Part.Circle(Vector(183.2, -99.5, 0), Vector(0, 0, 1), 2.4),
    Part.Circle(Vector(154.8, -141.6, 0), Vector(0, 0, 1), 2.4),
    Part.Circle(Vector(126.4, -183.7, 0), Vector(0, 0, 1), 2.4),
    Part.Circle(Vector(98, -225.8, 0), Vector(0, 0, 1), 2.4),
], False)
sketch10.addConstraint([
    Sketcher.Constraint("Equal", 0, 1),
    Sketcher.Constraint("Equal", 1, 2),
    Sketcher.Constraint("Equal", 2, 3),
    Sketcher.Constraint("Equal", 3, 4),
    Sketcher.Constraint("Equal", 4, 5),
    Sketcher.Constraint("Equal", 5, 6),
    Sketcher.Constraint("Equal", 6, 7),
    Sketcher.Constraint("Symmetric", 3, 3, 4, 3, -2),
    Sketcher.Constraint("Symmetric", 2, 3, 5, 3, -2),
    Sketcher.Constraint("Symmetric", 1, 3, 6, 3, -2),
    Sketcher.Constraint("Symmetric", 0, 3, 7, 3, -2),
    Sketcher.Constraint("Diameter", 0, Q("0.1875 in")),
    Sketcher.Constraint("DistanceY", 0, 3, -1, 1, Q("8.89 in")),
    Sketcher.Constraint("DistanceX", 0, 3, -1, 1, 97.9769),
    Sketcher.Constraint("DistanceX", 1, 3, -1, 1, 126.383899),
    Sketcher.Constraint("DistanceX", 2, 3, -1, 1, 154.790899),
    Sketcher.Constraint("DistanceX", 3, 3, -1, 1, 183.197898),
    Sketcher.Constraint("DistanceY", 1, 3, -1, 1, 183.690891),
    Sketcher.Constraint("DistanceY", 1, 3, 2, 3, 42.115109),
    Sketcher.Constraint("DistanceY", 2, 3, 3, 3, 42.115109),
])
pocket9 = body.newObject("PartDesign::Pocket", "Pocket008")
pocket9.Profile = sketch10
pocket9.Type = "ThroughAll"
pocket9.Reversed = True

doc.recompute()
